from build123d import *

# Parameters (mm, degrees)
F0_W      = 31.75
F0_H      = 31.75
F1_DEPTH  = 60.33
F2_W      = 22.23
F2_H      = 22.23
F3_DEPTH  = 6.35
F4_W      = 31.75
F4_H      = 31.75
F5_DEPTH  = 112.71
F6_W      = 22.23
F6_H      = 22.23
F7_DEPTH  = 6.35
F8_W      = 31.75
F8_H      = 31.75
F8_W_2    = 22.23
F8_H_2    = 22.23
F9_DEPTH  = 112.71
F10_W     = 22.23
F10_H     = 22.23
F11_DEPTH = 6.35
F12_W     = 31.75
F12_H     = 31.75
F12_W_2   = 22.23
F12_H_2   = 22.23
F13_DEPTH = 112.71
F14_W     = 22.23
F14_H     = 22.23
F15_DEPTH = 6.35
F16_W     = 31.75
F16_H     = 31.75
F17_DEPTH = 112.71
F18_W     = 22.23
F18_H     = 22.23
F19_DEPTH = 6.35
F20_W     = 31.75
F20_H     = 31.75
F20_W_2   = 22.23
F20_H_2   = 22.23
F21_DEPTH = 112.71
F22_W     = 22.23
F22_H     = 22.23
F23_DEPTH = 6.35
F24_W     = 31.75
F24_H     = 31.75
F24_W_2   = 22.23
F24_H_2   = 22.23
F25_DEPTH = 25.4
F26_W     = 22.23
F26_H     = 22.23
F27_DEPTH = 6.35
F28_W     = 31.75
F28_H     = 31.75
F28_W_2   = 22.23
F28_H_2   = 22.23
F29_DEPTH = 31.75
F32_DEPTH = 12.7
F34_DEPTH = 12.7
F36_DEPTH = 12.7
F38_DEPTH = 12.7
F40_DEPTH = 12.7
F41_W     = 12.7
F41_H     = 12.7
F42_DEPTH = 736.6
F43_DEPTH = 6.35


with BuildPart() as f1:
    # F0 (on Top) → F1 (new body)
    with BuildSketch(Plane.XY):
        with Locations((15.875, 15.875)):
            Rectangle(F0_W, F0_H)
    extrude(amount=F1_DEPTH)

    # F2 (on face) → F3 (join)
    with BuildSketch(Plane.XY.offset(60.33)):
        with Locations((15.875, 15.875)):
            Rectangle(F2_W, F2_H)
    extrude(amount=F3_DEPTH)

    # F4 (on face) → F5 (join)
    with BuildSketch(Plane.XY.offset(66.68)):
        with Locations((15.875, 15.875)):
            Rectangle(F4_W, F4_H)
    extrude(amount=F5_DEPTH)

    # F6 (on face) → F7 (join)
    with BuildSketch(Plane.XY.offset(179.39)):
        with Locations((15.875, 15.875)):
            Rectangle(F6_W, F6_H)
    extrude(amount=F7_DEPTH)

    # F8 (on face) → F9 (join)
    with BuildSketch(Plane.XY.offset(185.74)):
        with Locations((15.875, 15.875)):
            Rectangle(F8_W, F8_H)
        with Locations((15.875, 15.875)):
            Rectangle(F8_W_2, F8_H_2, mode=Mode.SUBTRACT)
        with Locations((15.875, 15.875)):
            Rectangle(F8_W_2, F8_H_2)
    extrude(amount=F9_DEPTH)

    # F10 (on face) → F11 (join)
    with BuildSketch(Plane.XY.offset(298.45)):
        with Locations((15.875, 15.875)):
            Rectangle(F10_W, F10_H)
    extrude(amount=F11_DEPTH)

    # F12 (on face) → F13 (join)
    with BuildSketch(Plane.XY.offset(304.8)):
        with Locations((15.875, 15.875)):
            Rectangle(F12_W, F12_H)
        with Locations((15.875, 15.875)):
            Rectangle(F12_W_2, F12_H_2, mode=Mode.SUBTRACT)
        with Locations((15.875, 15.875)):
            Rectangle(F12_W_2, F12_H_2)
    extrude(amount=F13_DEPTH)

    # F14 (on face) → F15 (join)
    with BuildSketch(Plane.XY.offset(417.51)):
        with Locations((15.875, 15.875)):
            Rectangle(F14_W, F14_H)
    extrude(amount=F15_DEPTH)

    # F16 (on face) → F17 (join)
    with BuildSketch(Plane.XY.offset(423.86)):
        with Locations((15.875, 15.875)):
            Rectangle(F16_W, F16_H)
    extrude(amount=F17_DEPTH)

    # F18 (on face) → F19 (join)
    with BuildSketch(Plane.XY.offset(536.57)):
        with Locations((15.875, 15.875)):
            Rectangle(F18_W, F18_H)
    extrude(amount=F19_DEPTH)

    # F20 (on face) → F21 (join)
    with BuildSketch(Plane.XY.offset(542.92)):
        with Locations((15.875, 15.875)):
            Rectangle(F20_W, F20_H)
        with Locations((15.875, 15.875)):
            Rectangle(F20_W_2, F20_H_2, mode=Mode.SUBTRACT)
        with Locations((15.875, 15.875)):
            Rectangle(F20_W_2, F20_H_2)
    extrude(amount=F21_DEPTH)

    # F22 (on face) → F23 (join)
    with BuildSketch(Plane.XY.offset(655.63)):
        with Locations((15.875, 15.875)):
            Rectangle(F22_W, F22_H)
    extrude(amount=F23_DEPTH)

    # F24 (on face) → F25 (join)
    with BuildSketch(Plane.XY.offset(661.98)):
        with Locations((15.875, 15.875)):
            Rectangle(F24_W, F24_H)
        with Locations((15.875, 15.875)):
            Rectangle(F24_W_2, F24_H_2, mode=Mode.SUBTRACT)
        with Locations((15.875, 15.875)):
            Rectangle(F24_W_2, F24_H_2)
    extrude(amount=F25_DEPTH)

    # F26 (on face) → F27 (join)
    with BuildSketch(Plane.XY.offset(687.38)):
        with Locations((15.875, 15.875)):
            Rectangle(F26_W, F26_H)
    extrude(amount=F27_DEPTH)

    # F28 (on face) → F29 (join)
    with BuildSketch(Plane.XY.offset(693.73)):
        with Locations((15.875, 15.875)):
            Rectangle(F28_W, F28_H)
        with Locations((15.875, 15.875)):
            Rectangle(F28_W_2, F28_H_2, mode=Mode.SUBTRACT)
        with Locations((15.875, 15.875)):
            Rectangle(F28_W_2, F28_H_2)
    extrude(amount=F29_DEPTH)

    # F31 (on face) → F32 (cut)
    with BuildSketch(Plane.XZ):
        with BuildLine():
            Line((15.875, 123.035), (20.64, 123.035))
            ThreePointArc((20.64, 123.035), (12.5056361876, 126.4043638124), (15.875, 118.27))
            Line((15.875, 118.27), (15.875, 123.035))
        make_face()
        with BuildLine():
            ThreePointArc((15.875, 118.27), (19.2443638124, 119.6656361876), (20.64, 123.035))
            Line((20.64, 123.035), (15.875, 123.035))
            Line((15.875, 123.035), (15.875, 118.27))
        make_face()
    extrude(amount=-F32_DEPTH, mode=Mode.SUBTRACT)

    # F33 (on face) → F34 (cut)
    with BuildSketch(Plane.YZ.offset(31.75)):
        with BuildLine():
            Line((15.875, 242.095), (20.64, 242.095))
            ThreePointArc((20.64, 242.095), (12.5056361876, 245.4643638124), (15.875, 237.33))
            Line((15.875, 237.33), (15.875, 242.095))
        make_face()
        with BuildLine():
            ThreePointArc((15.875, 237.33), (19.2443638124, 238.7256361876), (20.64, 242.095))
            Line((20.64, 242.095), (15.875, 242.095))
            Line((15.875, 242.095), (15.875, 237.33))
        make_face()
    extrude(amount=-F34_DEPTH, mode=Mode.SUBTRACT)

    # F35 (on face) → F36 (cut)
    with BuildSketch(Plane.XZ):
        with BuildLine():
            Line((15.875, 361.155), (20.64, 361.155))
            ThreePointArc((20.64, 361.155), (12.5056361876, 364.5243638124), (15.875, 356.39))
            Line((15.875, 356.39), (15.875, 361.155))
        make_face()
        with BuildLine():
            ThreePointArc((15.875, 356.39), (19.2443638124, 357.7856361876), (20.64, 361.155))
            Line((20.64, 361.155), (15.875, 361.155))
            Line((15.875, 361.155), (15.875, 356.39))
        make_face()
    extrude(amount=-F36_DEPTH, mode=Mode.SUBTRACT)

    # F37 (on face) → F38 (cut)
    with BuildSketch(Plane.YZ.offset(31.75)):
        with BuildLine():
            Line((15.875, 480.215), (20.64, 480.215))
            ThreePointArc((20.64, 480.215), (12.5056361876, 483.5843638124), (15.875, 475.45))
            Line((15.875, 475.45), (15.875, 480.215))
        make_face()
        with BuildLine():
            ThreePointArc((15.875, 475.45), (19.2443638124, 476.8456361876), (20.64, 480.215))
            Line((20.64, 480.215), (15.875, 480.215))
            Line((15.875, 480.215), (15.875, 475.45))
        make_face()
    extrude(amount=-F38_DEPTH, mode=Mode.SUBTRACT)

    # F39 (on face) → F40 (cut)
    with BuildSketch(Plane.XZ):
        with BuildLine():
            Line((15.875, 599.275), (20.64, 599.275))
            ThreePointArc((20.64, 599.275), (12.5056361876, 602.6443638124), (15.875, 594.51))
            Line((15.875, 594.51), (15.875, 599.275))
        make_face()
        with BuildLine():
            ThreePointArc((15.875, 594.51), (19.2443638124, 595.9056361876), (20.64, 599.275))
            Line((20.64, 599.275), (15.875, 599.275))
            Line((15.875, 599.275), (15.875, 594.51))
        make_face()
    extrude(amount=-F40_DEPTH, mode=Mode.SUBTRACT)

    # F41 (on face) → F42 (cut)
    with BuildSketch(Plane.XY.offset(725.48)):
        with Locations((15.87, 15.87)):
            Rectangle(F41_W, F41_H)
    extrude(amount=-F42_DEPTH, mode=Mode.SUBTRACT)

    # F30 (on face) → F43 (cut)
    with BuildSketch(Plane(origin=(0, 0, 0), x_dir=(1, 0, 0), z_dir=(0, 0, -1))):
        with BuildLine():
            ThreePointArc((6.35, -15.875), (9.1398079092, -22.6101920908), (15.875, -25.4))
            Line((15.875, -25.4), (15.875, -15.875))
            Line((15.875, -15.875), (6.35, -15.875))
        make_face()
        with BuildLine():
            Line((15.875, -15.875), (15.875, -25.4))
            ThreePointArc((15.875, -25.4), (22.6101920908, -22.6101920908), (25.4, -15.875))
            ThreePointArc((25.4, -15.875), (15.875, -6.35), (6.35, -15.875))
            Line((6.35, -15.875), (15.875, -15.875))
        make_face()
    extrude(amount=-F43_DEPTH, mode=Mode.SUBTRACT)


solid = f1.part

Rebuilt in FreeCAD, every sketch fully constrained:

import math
import FreeCAD as App
import Part
import Sketcher

V = App.Vector
Q = App.Units.Quantity


def add_polygon(sketch, points):
    """Adds a closed chain of lines whose ends are joined by coincident constraints."""
    first, n = sketch.GeometryCount, len(points)
    for a, b in zip(points, points[1:] + points[:1]):
        sketch.addGeometry(Part.LineSegment(App.Vector(*a, 0), App.Vector(*b, 0)), False)
    for i in range(n):
        sketch.addConstraint(Sketcher.Constraint("Coincident", first + i, 2, first + (i + 1) % n, 1))

doc = App.newDocument("Part")
body = doc.addObject("PartDesign::Body", "Body")

sketch1 = body.newObject("Sketcher::SketchObject", "Sketch")
sketch1.AttachmentSupport = (doc.getObject("XY_Plane"), [""])
sketch1.MapMode = "FlatFace"
add_polygon(sketch1, [(0, 32), (0, 0), (32, 0), (32, 32)])
sketch1.addConstraint(Sketcher.Constraint("Vertical", 0))
sketch1.addConstraint(Sketcher.Constraint("Horizontal", 1))
sketch1.addConstraint(Sketcher.Constraint("Vertical", 2))
sketch1.addConstraint(Sketcher.Constraint("Horizontal", 3))
sketch1.addConstraint(Sketcher.Constraint("Coincident", 0, 2, -1, 1))
sketch1.addConstraint(Sketcher.Constraint("Equal", 3, 0))
sketch1.addConstraint(Sketcher.Constraint("DistanceX", 1, 1, 1, 2, Q("1.25 in")))
pad1 = body.newObject("PartDesign::Pad", "Pad")
pad1.Profile = sketch1
pad1.Length = 60.33

sketch2 = body.newObject("Sketcher::SketchObject", "Sketch001")
sketch2.AttachmentSupport = (doc.getObject("XY_Plane"), [""])
sketch2.MapMode = "FlatFace"
sketch2.AttachmentOffset = App.Placement(V(0, 0, 60.33), App.Rotation())
add_polygon(sketch2, [(5, 27), (5, 5), (27, 5), (27, 27)])
sketch2.addConstraint(Sketcher.Constraint("Vertical", 0))
sketch2.addConstraint(Sketcher.Constraint("Horizontal", 1))
sketch2.addConstraint(Sketcher.Constraint("Vertical", 2))
sketch2.addConstraint(Sketcher.Constraint("Horizontal", 3))
sketch2.addConstraint(Sketcher.Constraint("Equal", 3, 0))
sketch2.addConstraint(Sketcher.Constraint("DistanceX", 1, 1, 1, 2, 22.23))
sketch2.addConstraint(Sketcher.Constraint("DistanceX", -1, 1, 0, 2, 4.76))
sketch2.addConstraint(Sketcher.Constraint("DistanceY", -1, 1, 0, 2, 4.76))
pad2 = body.newObject("PartDesign::Pad", "Pad001")
pad2.Profile = sketch2
pad2.Length = Q("0.25 in")

sketch3 = body.newObject("Sketcher::SketchObject", "Sketch002")
sketch3.AttachmentSupport = (doc.getObject("XY_Plane"), [""])
sketch3.MapMode = "FlatFace"
sketch3.AttachmentOffset = App.Placement(V(0, 0, 66.68), App.Rotation())
add_polygon(sketch3, [(0, 32), (0, 0), (32, 0), (32, 32)])
sketch3.addConstraint(Sketcher.Constraint("Vertical", 0))
sketch3.addConstraint(Sketcher.Constraint("Horizontal", 1))
sketch3.addConstraint(Sketcher.Constraint("Vertical", 2))
sketch3.addConstraint(Sketcher.Constraint("Horizontal", 3))
sketch3.addConstraint(Sketcher.Constraint("Coincident", 0, 2, -1, 1))
sketch3.addConstraint(Sketcher.Constraint("Equal", 3, 0))
sketch3.addConstraint(Sketcher.Constraint("DistanceX", 1, 1, 1, 2, Q("1.25 in")))
pad3 = body.newObject("PartDesign::Pad", "Pad002")
pad3.Profile = sketch3
pad3.Length = 112.71

sketch4 = body.newObject("Sketcher::SketchObject", "Sketch003")
sketch4.AttachmentSupport = (doc.getObject("XY_Plane"), [""])
sketch4.MapMode = "FlatFace"
sketch4.AttachmentOffset = App.Placement(V(0, 0, 179.39), App.Rotation())
add_polygon(sketch4, [(5, 27), (5, 5), (27, 5), (27, 27)])
sketch4.addConstraint(Sketcher.Constraint("Vertical", 0))
sketch4.addConstraint(Sketcher.Constraint("Horizontal", 1))
sketch4.addConstraint(Sketcher.Constraint("Vertical", 2))
sketch4.addConstraint(Sketcher.Constraint("Horizontal", 3))
sketch4.addConstraint(Sketcher.Constraint("Equal", 3, 0))
sketch4.addConstraint(Sketcher.Constraint("DistanceX", 1, 1, 1, 2, 22.23))
sketch4.addConstraint(Sketcher.Constraint("DistanceX", -1, 1, 0, 2, 4.76))
sketch4.addConstraint(Sketcher.Constraint("DistanceY", -1, 1, 0, 2, 4.76))
pad4 = body.newObject("PartDesign::Pad", "Pad003")
pad4.Profile = sketch4
pad4.Length = Q("0.25 in")

sketch5 = body.newObject("Sketcher::SketchObject", "Sketch004")
sketch5.AttachmentSupport = (doc.getObject("XY_Plane"), [""])
sketch5.MapMode = "FlatFace"
sketch5.AttachmentOffset = App.Placement(V(0, 0, 185.74), App.Rotation())
add_polygon(sketch5, [(0, 32), (0, 0), (32, 0), (32, 32)])
sketch5.addConstraint(Sketcher.Constraint("Vertical", 0))
sketch5.addConstraint(Sketcher.Constraint("Horizontal", 1))
sketch5.addConstraint(Sketcher.Constraint("Vertical", 2))
sketch5.addConstraint(Sketcher.Constraint("Horizontal", 3))
sketch5.addConstraint(Sketcher.Constraint("Coincident", 0, 2, -1, 1))
sketch5.addConstraint(Sketcher.Constraint("Equal", 3, 0))
sketch5.addConstraint(Sketcher.Constraint("DistanceX", 1, 1, 1, 2, Q("1.25 in")))
pad5 = body.newObject("PartDesign::Pad", "Pad004")
pad5.Profile = sketch5
pad5.Length = 112.71

sketch6 = body.newObject("Sketcher::SketchObject", "Sketch005")
sketch6.AttachmentSupport = (doc.getObject("XY_Plane"), [""])
sketch6.MapMode = "FlatFace"
sketch6.AttachmentOffset = App.Placement(V(0, 0, 11.75 * 25.4), App.Rotation())
add_polygon(sketch6, [(5, 27), (5, 5), (27, 5), (27, 27)])
sketch6.addConstraint(Sketcher.Constraint("Vertical", 0))
sketch6.addConstraint(Sketcher.Constraint("Horizontal", 1))
sketch6.addConstraint(Sketcher.Constraint("Vertical", 2))
sketch6.addConstraint(Sketcher.Constraint("Horizontal", 3))
sketch6.addConstraint(Sketcher.Constraint("Equal", 3, 0))
sketch6.addConstraint(Sketcher.Constraint("DistanceX", 1, 1, 1, 2, 22.23))
sketch6.addConstraint(Sketcher.Constraint("DistanceX", -1, 1, 0, 2, 4.76))
sketch6.addConstraint(Sketcher.Constraint("DistanceY", -1, 1, 0, 2, 4.76))
pad6 = body.newObject("PartDesign::Pad", "Pad005")
pad6.Profile = sketch6
pad6.Length = Q("0.25 in")

sketch7 = body.newObject("Sketcher::SketchObject", "Sketch006")
sketch7.AttachmentSupport = (doc.getObject("XY_Plane"), [""])
sketch7.MapMode = "FlatFace"
sketch7.AttachmentOffset = App.Placement(V(0, 0, 12 * 25.4), App.Rotation())
add_polygon(sketch7, [(0, 32), (0, 0), (32, 0), (32, 32)])
sketch7.addConstraint(Sketcher.Constraint("Vertical", 0))
sketch7.addConstraint(Sketcher.Constraint("Horizontal", 1))
sketch7.addConstraint(Sketcher.Constraint("Vertical", 2))
sketch7.addConstraint(Sketcher.Constraint("Horizontal", 3))
sketch7.addConstraint(Sketcher.Constraint("Coincident", 0, 2, -1, 1))
sketch7.addConstraint(Sketcher.Constraint("Equal", 3, 0))
sketch7.addConstraint(Sketcher.Constraint("DistanceX", 1, 1, 1, 2, Q("1.25 in")))
pad7 = body.newObject("PartDesign::Pad", "Pad006")
pad7.Profile = sketch7
pad7.Length = 112.71

sketch8 = body.newObject("Sketcher::SketchObject", "Sketch007")
sketch8.AttachmentSupport = (doc.getObject("XY_Plane"), [""])
sketch8.MapMode = "FlatFace"
sketch8.AttachmentOffset = App.Placement(V(0, 0, 417.51), App.Rotation())
add_polygon(sketch8, [(5, 27), (5, 5), (27, 5), (27, 27)])
sketch8.addConstraint(Sketcher.Constraint("Vertical", 0))
sketch8.addConstraint(Sketcher.Constraint("Horizontal", 1))
sketch8.addConstraint(Sketcher.Constraint("Vertical", 2))
sketch8.addConstraint(Sketcher.Constraint("Horizontal", 3))
sketch8.addConstraint(Sketcher.Constraint("Equal", 3, 0))
sketch8.addConstraint(Sketcher.Constraint("DistanceX", 1, 1, 1, 2, 22.23))
sketch8.addConstraint(Sketcher.Constraint("DistanceX", -1, 1, 0, 2, 4.76))
sketch8.addConstraint(Sketcher.Constraint("DistanceY", -1, 1, 0, 2, 4.76))
pad8 = body.newObject("PartDesign::Pad", "Pad007")
pad8.Profile = sketch8
pad8.Length = Q("0.25 in")

sketch9 = body.newObject("Sketcher::SketchObject", "Sketch008")
sketch9.AttachmentSupport = (doc.getObject("XY_Plane"), [""])
sketch9.MapMode = "FlatFace"
sketch9.AttachmentOffset = App.Placement(V(0, 0, 423.86), App.Rotation())
add_polygon(sketch9, [(0, 32), (0, 0), (32, 0), (32, 32)])
sketch9.addConstraint(Sketcher.Constraint("Vertical", 0))
sketch9.addConstraint(Sketcher.Constraint("Horizontal", 1))
sketch9.addConstraint(Sketcher.Constraint("Vertical", 2))
sketch9.addConstraint(Sketcher.Constraint("Horizontal", 3))
sketch9.addConstraint(Sketcher.Constraint("Coincident", 0, 2, -1, 1))
sketch9.addConstraint(Sketcher.Constraint("Equal", 3, 0))
sketch9.addConstraint(Sketcher.Constraint("DistanceX", 1, 1, 1, 2, Q("1.25 in")))
pad9 = body.newObject("PartDesign::Pad", "Pad008")
pad9.Profile = sketch9
pad9.Length = 112.71

sketch10 = body.newObject("Sketcher::SketchObject", "Sketch009")
sketch10.AttachmentSupport = (doc.getObject("XY_Plane"), [""])
sketch10.MapMode = "FlatFace"
sketch10.AttachmentOffset = App.Placement(V(0, 0, 536.57), App.Rotation())
add_polygon(sketch10, [(5, 27), (5, 5), (27, 5), (27, 27)])
sketch10.addConstraint(Sketcher.Constraint("Vertical", 0))
sketch10.addConstraint(Sketcher.Constraint("Horizontal", 1))
sketch10.addConstraint(Sketcher.Constraint("Vertical", 2))
sketch10.addConstraint(Sketcher.Constraint("Horizontal", 3))
sketch10.addConstraint(Sketcher.Constraint("Equal", 3, 0))
sketch10.addConstraint(Sketcher.Constraint("DistanceX", 1, 1, 1, 2, 22.23))
sketch10.addConstraint(Sketcher.Constraint("DistanceX", -1, 1, 0, 2, 4.76))
sketch10.addConstraint(Sketcher.Constraint("DistanceY", -1, 1, 0, 2, 4.76))
pad10 = body.newObject("PartDesign::Pad", "Pad009")
pad10.Profile = sketch10
pad10.Length = Q("0.25 in")

sketch11 = body.newObject("Sketcher::SketchObject", "Sketch010")
sketch11.AttachmentSupport = (doc.getObject("XY_Plane"), [""])
sketch11.MapMode = "FlatFace"
sketch11.AttachmentOffset = App.Placement(V(0, 0, 542.92), App.Rotation())
add_polygon(sketch11, [(0, 32), (0, 0), (32, 0), (32, 32)])
sketch11.addConstraint(Sketcher.Constraint("Vertical", 0))
sketch11.addConstraint(Sketcher.Constraint("Horizontal", 1))
sketch11.addConstraint(Sketcher.Constraint("Vertical", 2))
sketch11.addConstraint(Sketcher.Constraint("Horizontal", 3))
sketch11.addConstraint(Sketcher.Constraint("Coincident", 0, 2, -1, 1))
sketch11.addConstraint(Sketcher.Constraint("Equal", 3, 0))
sketch11.addConstraint(Sketcher.Constraint("DistanceX", 1, 1, 1, 2, Q("1.25 in")))
pad11 = body.newObject("PartDesign::Pad", "Pad010")
pad11.Profile = sketch11
pad11.Length = 112.71

sketch12 = body.newObject("Sketcher::SketchObject", "Sketch011")
sketch12.AttachmentSupport = (doc.getObject("XY_Plane"), [""])
sketch12.MapMode = "FlatFace"
sketch12.AttachmentOffset = App.Placement(V(0, 0, 655.63), App.Rotation())
add_polygon(sketch12, [(5, 27), (5, 5), (27, 5), (27, 27)])
sketch12.addConstraint(Sketcher.Constraint("Vertical", 0))
sketch12.addConstraint(Sketcher.Constraint("Horizontal", 1))
sketch12.addConstraint(Sketcher.Constraint("Vertical", 2))
sketch12.addConstraint(Sketcher.Constraint("Horizontal", 3))
sketch12.addConstraint(Sketcher.Constraint("Equal", 3, 0))
sketch12.addConstraint(Sketcher.Constraint("DistanceX", 1, 1, 1, 2, 22.23))
sketch12.addConstraint(Sketcher.Constraint("DistanceX", -1, 1, 0, 2, 4.76))
sketch12.addConstraint(Sketcher.Constraint("DistanceY", -1, 1, 0, 2, 4.76))
pad12 = body.newObject("PartDesign::Pad", "Pad011")
pad12.Profile = sketch12
pad12.Length = Q("0.25 in")

sketch13 = body.newObject("Sketcher::SketchObject", "Sketch012")
sketch13.AttachmentSupport = (doc.getObject("XY_Plane"), [""])
sketch13.MapMode = "FlatFace"
sketch13.AttachmentOffset = App.Placement(V(0, 0, 661.98), App.Rotation())
add_polygon(sketch13, [(0, 32), (0, 0), (32, 0), (32, 32)])
sketch13.addConstraint(Sketcher.Constraint("Vertical", 0))
sketch13.addConstraint(Sketcher.Constraint("Horizontal", 1))
sketch13.addConstraint(Sketcher.Constraint("Vertical", 2))
sketch13.addConstraint(Sketcher.Constraint("Horizontal", 3))
sketch13.addConstraint(Sketcher.Constraint("Coincident", 0, 2, -1, 1))
sketch13.addConstraint(Sketcher.Constraint("Equal", 3, 0))
sketch13.addConstraint(Sketcher.Constraint("DistanceX", 1, 1, 1, 2, Q("1.25 in")))
pad13 = body.newObject("PartDesign::Pad", "Pad012")
pad13.Profile = sketch13
pad13.Length = Q("1 in")

sketch14 = body.newObject("Sketcher::SketchObject", "Sketch013")
sketch14.AttachmentSupport = (doc.getObject("XY_Plane"), [""])
sketch14.MapMode = "FlatFace"
sketch14.AttachmentOffset = App.Placement(V(0, 0, 687.38), App.Rotation())
add_polygon(sketch14, [(5, 27), (5, 5), (27, 5), (27, 27)])
sketch14.addConstraint(Sketcher.Constraint("Vertical", 0))
sketch14.addConstraint(Sketcher.Constraint("Horizontal", 1))
sketch14.addConstraint(Sketcher.Constraint("Vertical", 2))
sketch14.addConstraint(Sketcher.Constraint("Horizontal", 3))
sketch14.addConstraint(Sketcher.Constraint("Equal", 3, 0))
sketch14.addConstraint(Sketcher.Constraint("DistanceX", 1, 1, 1, 2, 22.23))
sketch14.addConstraint(Sketcher.Constraint("DistanceX", -1, 1, 0, 2, 4.76))
sketch14.addConstraint(Sketcher.Constraint("DistanceY", -1, 1, 0, 2, 4.76))
pad14 = body.newObject("PartDesign::Pad", "Pad013")
pad14.Profile = sketch14
pad14.Length = Q("0.25 in")

sketch15 = body.newObject("Sketcher::SketchObject", "Sketch014")
sketch15.AttachmentSupport = (doc.getObject("XY_Plane"), [""])
sketch15.MapMode = "FlatFace"
sketch15.AttachmentOffset = App.Placement(V(0, 0, 693.73), App.Rotation())
add_polygon(sketch15, [(0, 32), (0, 0), (32, 0), (32, 32)])
sketch15.addConstraint(Sketcher.Constraint("Vertical", 0))
sketch15.addConstraint(Sketcher.Constraint("Horizontal", 1))
sketch15.addConstraint(Sketcher.Constraint("Vertical", 2))
sketch15.addConstraint(Sketcher.Constraint("Horizontal", 3))
sketch15.addConstraint(Sketcher.Constraint("Coincident", 0, 2, -1, 1))
sketch15.addConstraint(Sketcher.Constraint("Equal", 3, 0))
sketch15.addConstraint(Sketcher.Constraint("DistanceX", 1, 1, 1, 2, Q("1.25 in")))
pad15 = body.newObject("PartDesign::Pad", "Pad014")
pad15.Profile = sketch15
pad15.Length = Q("1.25 in")

sketch16 = body.newObject("Sketcher::SketchObject", "Sketch015")
sketch16.AttachmentSupport = (doc.getObject("XZ_Plane"), [""])
sketch16.MapMode = "FlatFace"
sketch16.addGeometry(Part.ArcOfCircle(Part.Circle(V(15.9, 123, 0), V(0, 0, 1), 4.8), math.radians(0), math.radians(270)), False)
sketch16.addGeometry(Part.ArcOfCircle(Part.Circle(V(15.9, 123, 0), V(0, 0, 1), 4.8), math.radians(-90), math.radians(0)), False)
sketch16.addConstraint(Sketcher.Constraint("Tangent", 0, 1, 1, 2))
sketch16.addConstraint(Sketcher.Constraint("Coincident", 1, 1, 0, 2))
sketch16.addConstraint(Sketcher.Constraint("Horizontal", 1, 3, 0, 1))
sketch16.addConstraint(Sketcher.Constraint("Vertical", 0, 3, 1, 1))
sketch16.addConstraint(Sketcher.Constraint("Radius", 0, 4.765))
sketch16.addConstraint(Sketcher.Constraint("DistanceX", -1, 1, 0, 3, Q("0.625 in")))
sketch16.addConstraint(Sketcher.Constraint("DistanceY", -1, 1, 0, 3, 123.035))
pocket1 = body.newObject("PartDesign::Pocket", "Pocket")
pocket1.Profile = sketch16
pocket1.Length = Q("0.5 in")

sketch17 = body.newObject("Sketcher::SketchObject", "Sketch016")
sketch17.AttachmentSupport = (doc.getObject("YZ_Plane"), [""])
sketch17.MapMode = "FlatFace"
sketch17.AttachmentOffset = App.Placement(V(0, 0, 1.25 * 25.4), App.Rotation())
sketch17.addGeometry(Part.ArcOfCircle(Part.Circle(V(15.9, 242.1, 0), V(0, 0, 1), 4.8), math.radians(0), math.radians(270)), False)
sketch17.addGeometry(Part.ArcOfCircle(Part.Circle(V(15.9, 242.1, 0), V(0, 0, 1), 4.8), math.radians(-90), math.radians(0)), False)
sketch17.addConstraint(Sketcher.Constraint("Tangent", 0, 1, 1, 2))
sketch17.addConstraint(Sketcher.Constraint("Coincident", 1, 1, 0, 2))
sketch17.addConstraint(Sketcher.Constraint("Horizontal", 1, 3, 0, 1))
sketch17.addConstraint(Sketcher.Constraint("Vertical", 0, 3, 1, 1))
sketch17.addConstraint(Sketcher.Constraint("Radius", 0, 4.765))
sketch17.addConstraint(Sketcher.Constraint("DistanceX", -1, 1, 0, 3, Q("0.625 in")))
sketch17.addConstraint(Sketcher.Constraint("DistanceY", -1, 1, 0, 3, 242.095))
pocket2 = body.newObject("PartDesign::Pocket", "Pocket001")
pocket2.Profile = sketch17
pocket2.Length = Q("0.5 in")

sketch18 = body.newObject("Sketcher::SketchObject", "Sketch017")
sketch18.AttachmentSupport = (doc.getObject("XZ_Plane"), [""])
sketch18.MapMode = "FlatFace"
sketch18.addGeometry(Part.ArcOfCircle(Part.Circle(V(15.9, 361.2, 0), V(0, 0, 1), 4.8), math.radians(0), math.radians(270)), False)
sketch18.addGeometry(Part.ArcOfCircle(Part.Circle(V(15.9, 361.2, 0), V(0, 0, 1), 4.8), math.radians(-90), math.radians(0)), False)
sketch18.addConstraint(Sketcher.Constraint("Tangent", 0, 1, 1, 2))
sketch18.addConstraint(Sketcher.Constraint("Coincident", 1, 1, 0, 2))
sketch18.addConstraint(Sketcher.Constraint("Horizontal", 1, 3, 0, 1))
sketch18.addConstraint(Sketcher.Constraint("Vertical", 0, 3, 1, 1))
sketch18.addConstraint(Sketcher.Constraint("Radius", 0, 4.765))
sketch18.addConstraint(Sketcher.Constraint("DistanceX", -1, 1, 0, 3, Q("0.625 in")))
sketch18.addConstraint(Sketcher.Constraint("DistanceY", -1, 1, 0, 3, 361.155))
pocket3 = body.newObject("PartDesign::Pocket", "Pocket002")
pocket3.Profile = sketch18
pocket3.Length = Q("0.5 in")

sketch19 = body.newObject("Sketcher::SketchObject", "Sketch018")
sketch19.AttachmentSupport = (doc.getObject("YZ_Plane"), [""])
sketch19.MapMode = "FlatFace"
sketch19.AttachmentOffset = App.Placement(V(0, 0, 1.25 * 25.4), App.Rotation())
sketch19.addGeometry(Part.ArcOfCircle(Part.Circle(V(15.9, 480.2, 0), V(0, 0, 1), 4.8), math.radians(0), math.radians(270)), False)
sketch19.addGeometry(Part.ArcOfCircle(Part.Circle(V(15.9, 480.2, 0), V(0, 0, 1), 4.8), math.radians(-90), math.radians(0)), False)
sketch19.addConstraint(Sketcher.Constraint("Tangent", 0, 1, 1, 2))
sketch19.addConstraint(Sketcher.Constraint("Coincident", 1, 1, 0, 2))
sketch19.addConstraint(Sketcher.Constraint("Horizontal", 1, 3, 0, 1))
sketch19.addConstraint(Sketcher.Constraint("Vertical", 0, 3, 1, 1))
sketch19.addConstraint(Sketcher.Constraint("Radius", 0, 4.765))
sketch19.addConstraint(Sketcher.Constraint("DistanceX", -1, 1, 0, 3, Q("0.625 in")))
sketch19.addConstraint(Sketcher.Constraint("DistanceY", -1, 1, 0, 3, 480.215))
pocket4 = body.newObject("PartDesign::Pocket", "Pocket003")
pocket4.Profile = sketch19
pocket4.Length = Q("0.5 in")

sketch20 = body.newObject("Sketcher::SketchObject", "Sketch019")
sketch20.AttachmentSupport = (doc.getObject("XZ_Plane"), [""])
sketch20.MapMode = "FlatFace"
sketch20.addGeometry(Part.ArcOfCircle(Part.Circle(V(15.9, 599.3, 0), V(0, 0, 1), 4.8), math.radians(0), math.radians(270)), False)
sketch20.addGeometry(Part.ArcOfCircle(Part.Circle(V(15.9, 599.3, 0), V(0, 0, 1), 4.8), math.radians(-90), math.radians(0)), False)
sketch20.addConstraint(Sketcher.Constraint("Tangent", 0, 1, 1, 2))
sketch20.addConstraint(Sketcher.Constraint("Coincident", 1, 1, 0, 2))
sketch20.addConstraint(Sketcher.Constraint("Horizontal", 1, 3, 0, 1))
sketch20.addConstraint(Sketcher.Constraint("Vertical", 0, 3, 1, 1))
sketch20.addConstraint(Sketcher.Constraint("Radius", 0, 4.765))
sketch20.addConstraint(Sketcher.Constraint("DistanceX", -1, 1, 0, 3, Q("0.625 in")))
sketch20.addConstraint(Sketcher.Constraint("DistanceY", -1, 1, 0, 3, 599.275))
pocket5 = body.newObject("PartDesign::Pocket", "Pocket004")
pocket5.Profile = sketch20
pocket5.Length = Q("0.5 in")

sketch21 = body.newObject("Sketcher::SketchObject", "Sketch020")
sketch21.AttachmentSupport = (doc.getObject("XY_Plane"), [""])
sketch21.MapMode = "FlatFace"
sketch21.AttachmentOffset = App.Placement(V(0, 0, 725.48), App.Rotation())
add_polygon(sketch21, [(10, 22), (10, 10), (22, 10), (22, 22)])
sketch21.addConstraint(Sketcher.Constraint("Vertical", 0))
sketch21.addConstraint(Sketcher.Constraint("Horizontal", 1))
sketch21.addConstraint(Sketcher.Constraint("Vertical", 2))
sketch21.addConstraint(Sketcher.Constraint("Horizontal", 3))
sketch21.addConstraint(Sketcher.Constraint("Equal", 3, 0))
sketch21.addConstraint(Sketcher.Constraint("DistanceX", 1, 1, 1, 2, Q("0.5 in")))
sketch21.addConstraint(Sketcher.Constraint("DistanceX", -1, 1, 0, 2, 9.52))
sketch21.addConstraint(Sketcher.Constraint("DistanceY", -1, 1, 0, 2, 9.52))
pocket6 = body.newObject("PartDesign::Pocket", "Pocket005")
pocket6.Profile = sketch21
pocket6.Length = Q("29 in")

sketch22 = body.newObject("Sketcher::SketchObject", "Sketch021")
sketch22.AttachmentSupport = (doc.getObject("XY_Plane"), [""])
sketch22.MapMode = "FlatFace"
sketch22.addGeometry(Part.Circle(V(16, 16, 0), V(0, 0, 1), 10), False)
sketch22.addConstraint(Sketcher.Constraint("Diameter", 0, Q("0.75 in")))
sketch22.addConstraint(Sketcher.Constraint("DistanceX", -1, 1, 0, 3, Q("0.625 in")))
sketch22.addConstraint(Sketcher.Constraint("DistanceY", -1, 1, 0, 3, Q("0.625 in")))
pocket7 = body.newObject("PartDesign::Pocket", "Pocket006")
pocket7.Profile = sketch22
pocket7.Length = Q("0.25 in")
pocket7.Reversed = True

doc.recompute()
